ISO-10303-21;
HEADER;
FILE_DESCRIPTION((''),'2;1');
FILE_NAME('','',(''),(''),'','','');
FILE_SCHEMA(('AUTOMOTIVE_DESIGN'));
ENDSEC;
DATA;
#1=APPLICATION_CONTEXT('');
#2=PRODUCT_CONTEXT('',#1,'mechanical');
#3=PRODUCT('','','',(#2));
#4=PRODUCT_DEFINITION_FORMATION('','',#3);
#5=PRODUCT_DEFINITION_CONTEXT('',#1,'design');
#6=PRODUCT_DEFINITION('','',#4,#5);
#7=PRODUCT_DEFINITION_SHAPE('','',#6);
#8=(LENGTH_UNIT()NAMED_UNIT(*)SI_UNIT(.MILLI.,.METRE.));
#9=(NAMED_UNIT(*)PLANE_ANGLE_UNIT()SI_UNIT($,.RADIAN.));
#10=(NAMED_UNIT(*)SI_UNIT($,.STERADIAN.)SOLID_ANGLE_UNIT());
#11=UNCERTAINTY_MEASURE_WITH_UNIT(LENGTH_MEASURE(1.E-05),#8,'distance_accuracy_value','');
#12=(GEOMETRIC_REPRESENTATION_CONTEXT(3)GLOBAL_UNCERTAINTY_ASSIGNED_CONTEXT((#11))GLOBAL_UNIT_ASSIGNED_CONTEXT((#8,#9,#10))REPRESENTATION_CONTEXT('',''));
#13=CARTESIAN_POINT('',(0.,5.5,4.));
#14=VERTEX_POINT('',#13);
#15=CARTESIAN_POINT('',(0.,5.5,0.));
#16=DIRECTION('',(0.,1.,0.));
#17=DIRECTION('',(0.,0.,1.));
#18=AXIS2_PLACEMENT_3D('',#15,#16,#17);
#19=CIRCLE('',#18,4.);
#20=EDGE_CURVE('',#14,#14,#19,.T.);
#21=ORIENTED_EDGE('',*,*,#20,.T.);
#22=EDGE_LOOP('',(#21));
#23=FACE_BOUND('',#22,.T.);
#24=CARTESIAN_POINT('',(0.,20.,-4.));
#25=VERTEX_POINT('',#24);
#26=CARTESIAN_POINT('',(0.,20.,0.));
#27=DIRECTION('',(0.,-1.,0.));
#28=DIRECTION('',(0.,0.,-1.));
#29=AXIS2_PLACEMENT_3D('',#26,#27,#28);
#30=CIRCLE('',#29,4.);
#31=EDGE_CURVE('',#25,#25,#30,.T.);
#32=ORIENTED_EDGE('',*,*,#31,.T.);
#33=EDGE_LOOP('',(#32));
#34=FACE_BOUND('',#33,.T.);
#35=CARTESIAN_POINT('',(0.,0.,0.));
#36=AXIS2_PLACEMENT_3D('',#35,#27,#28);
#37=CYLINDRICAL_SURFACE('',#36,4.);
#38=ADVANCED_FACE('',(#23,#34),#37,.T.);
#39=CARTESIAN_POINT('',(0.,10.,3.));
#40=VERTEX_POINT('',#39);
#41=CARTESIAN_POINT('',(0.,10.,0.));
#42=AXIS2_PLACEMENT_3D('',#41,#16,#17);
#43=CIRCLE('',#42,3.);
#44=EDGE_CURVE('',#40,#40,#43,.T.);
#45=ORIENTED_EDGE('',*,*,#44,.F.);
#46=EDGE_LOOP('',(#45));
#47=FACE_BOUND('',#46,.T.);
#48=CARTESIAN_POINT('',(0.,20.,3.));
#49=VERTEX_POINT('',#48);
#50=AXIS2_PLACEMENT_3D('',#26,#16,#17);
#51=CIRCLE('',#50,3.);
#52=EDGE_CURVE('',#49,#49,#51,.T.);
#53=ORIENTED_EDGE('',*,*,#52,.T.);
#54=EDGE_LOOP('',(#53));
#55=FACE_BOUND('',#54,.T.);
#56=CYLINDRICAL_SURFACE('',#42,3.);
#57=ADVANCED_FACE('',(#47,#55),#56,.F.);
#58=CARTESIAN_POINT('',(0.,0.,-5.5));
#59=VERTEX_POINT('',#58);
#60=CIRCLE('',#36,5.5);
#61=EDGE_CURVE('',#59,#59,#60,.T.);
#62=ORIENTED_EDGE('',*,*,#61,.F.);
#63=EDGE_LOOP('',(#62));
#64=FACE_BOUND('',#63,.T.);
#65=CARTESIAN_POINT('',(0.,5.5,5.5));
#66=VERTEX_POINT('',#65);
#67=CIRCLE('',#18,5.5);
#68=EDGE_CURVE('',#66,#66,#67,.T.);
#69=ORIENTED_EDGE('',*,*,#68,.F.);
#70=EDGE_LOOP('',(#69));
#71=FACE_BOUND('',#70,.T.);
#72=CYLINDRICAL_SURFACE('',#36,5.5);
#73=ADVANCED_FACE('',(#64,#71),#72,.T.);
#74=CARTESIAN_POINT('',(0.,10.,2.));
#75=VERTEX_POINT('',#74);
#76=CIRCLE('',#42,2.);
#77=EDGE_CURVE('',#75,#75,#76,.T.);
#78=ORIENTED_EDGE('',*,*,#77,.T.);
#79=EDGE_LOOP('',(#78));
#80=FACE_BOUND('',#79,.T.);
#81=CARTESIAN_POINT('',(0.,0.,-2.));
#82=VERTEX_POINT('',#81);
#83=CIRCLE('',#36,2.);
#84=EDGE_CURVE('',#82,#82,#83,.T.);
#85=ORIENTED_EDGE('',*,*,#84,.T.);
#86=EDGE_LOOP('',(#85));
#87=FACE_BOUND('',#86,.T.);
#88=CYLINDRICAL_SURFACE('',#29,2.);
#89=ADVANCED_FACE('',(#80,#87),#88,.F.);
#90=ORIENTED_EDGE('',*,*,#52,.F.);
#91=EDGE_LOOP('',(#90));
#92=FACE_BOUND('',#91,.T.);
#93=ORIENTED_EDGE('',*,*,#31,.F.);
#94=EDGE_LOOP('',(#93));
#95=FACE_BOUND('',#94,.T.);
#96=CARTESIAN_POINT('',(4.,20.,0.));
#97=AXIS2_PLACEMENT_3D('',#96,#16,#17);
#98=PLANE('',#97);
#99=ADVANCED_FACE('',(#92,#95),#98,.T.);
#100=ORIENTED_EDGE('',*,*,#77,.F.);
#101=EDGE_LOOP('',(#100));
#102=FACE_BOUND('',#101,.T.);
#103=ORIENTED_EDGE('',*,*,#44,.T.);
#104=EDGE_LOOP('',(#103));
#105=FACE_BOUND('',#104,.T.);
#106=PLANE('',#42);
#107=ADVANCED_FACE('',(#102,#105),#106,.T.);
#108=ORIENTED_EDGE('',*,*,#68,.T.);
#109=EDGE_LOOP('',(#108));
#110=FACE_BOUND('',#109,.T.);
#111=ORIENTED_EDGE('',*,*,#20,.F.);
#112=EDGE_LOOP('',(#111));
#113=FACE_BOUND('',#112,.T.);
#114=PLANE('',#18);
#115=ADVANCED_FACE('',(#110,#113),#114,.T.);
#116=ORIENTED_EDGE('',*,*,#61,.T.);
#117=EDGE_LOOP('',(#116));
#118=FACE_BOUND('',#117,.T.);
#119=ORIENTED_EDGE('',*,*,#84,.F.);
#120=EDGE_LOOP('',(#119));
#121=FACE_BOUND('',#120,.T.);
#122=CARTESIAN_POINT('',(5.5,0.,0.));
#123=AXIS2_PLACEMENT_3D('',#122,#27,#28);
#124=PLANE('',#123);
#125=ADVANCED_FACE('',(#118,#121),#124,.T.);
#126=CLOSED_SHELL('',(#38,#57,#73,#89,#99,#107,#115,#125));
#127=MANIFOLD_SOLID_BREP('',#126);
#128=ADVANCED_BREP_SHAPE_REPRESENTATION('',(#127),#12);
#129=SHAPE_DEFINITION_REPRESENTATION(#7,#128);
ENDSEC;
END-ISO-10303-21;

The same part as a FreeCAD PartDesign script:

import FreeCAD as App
import Part
import Sketcher
from FreeCAD import Vector

doc = App.newDocument("Part")
params = doc.addObject("Spreadsheet::Sheet", "Params")
for row, (alias, value) in enumerate([
    ("sketch1_width", "4 mm"),
    ("sketch1_height", "9 mm"),
    ("sketch1_height2", "20 mm"),
    ("sketch1_width2", "5.5 mm"),
    ("revolution_angle", "360 deg"),
    ("sketch2_diameter", "6 mm"),
    ("pocket1_length", "10 mm"),
    ("sketch3_diameter", "4 mm"),
    ("sketch4_diameter", "11 mm"),
    ("sketch4_diameter2", "8 mm"),
    ("pocket3_length", "5.5 mm"),
], start=1):
    params.set(f"A{row}", alias)
    params.set(f"B{row}", "=" + value)
    params.setAlias(f"B{row}", alias)

body = doc.addObject("PartDesign::Body", "Body")

# Sketch on XY plane
sketch1 = body.newObject("Sketcher::SketchObject", "Sketch")
sketch1.AttachmentSupport = (doc.getObject("XY_Plane"), [""])
sketch1.MapMode = "FlatFace"
sketch1.addGeometry([
    Part.LineSegment(Vector(4, 11, 0), Vector(4, 20, 0)),  # 0
    Part.LineSegment(Vector(4, 20, 0), Vector(0, 20, 0)),  # 1
    Part.LineSegment(Vector(0, 20, 0), Vector(0, 0, 0)),  # 2
    Part.LineSegment(Vector(0, 0, 0), Vector(5.5, 0, 0)),  # 3
    Part.LineSegment(Vector(5.5, 0, 0), Vector(5.5, 11, 0)),  # 4
    Part.LineSegment(Vector(5.5, 11, 0), Vector(4, 11, 0)),  # 5
], False)
sketch1.addConstraint([
    Sketcher.Constraint("Coincident", 0, 2, 1, 1),
    Sketcher.Constraint("Coincident", 1, 2, 2, 1),
    Sketcher.Constraint("Coincident", 2, 2, 3, 1),
    Sketcher.Constraint("Coincident", 3, 2, 4, 1),
    Sketcher.Constraint("Coincident", 4, 2, 5, 1),
    Sketcher.Constraint("Coincident", 5, 2, 0, 1),
    Sketcher.Constraint("Vertical", 0),
    Sketcher.Constraint("Horizontal", 1),
    Sketcher.Constraint("Vertical", 2),
    Sketcher.Constraint("Horizontal", 3),
    Sketcher.Constraint("Vertical", 4),
    Sketcher.Constraint("Horizontal", 5),
    Sketcher.Constraint("Coincident", 2, 2, -1, 1),
    Sketcher.Constraint("DistanceX", 1, 2, 1, 1, 4.0),
    Sketcher.Constraint("DistanceY", 0, 1, 0, 2, 9.0),
    Sketcher.Constraint("DistanceY", 2, 2, 2, 1, 20.0),
    Sketcher.Constraint("DistanceX", 3, 1, 3, 2, 5.5),
])
sketch1.setExpression("Constraints[13]", "Params.sketch1_width")
sketch1.setExpression("Constraints[14]", "Params.sketch1_height")
sketch1.setExpression("Constraints[15]", "Params.sketch1_height2")
sketch1.setExpression("Constraints[16]", "Params.sketch1_width2")
revolution = body.newObject("PartDesign::Revolution", "Revolution")
revolution.Profile = sketch1
revolution.ReferenceAxis = (sketch1, ["V_Axis"])
revolution.setExpression("Angle", "Params.revolution_angle")

# Sketch on XZ plane
sketch2 = body.newObject("Sketcher::SketchObject", "Sketch001")
sketch2.AttachmentSupport = (doc.getObject("XZ_Plane"), [""])
sketch2.MapMode = "FlatFace"
sketch2.AttachmentOffset = App.Placement(Vector(0, 0, -20), App.Rotation())
sketch2.addGeometry(Part.Circle(Vector(0, 0, 0), Vector(0, 0, 1), 3), False)
sketch2.addConstraint([
    Sketcher.Constraint("Coincident", 0, 3, -1, 1),
    Sketcher.Constraint("Diameter", 0, 6.0),
])
sketch2.setExpression("Constraints[1]", "Params.sketch2_diameter")
pocket1 = body.newObject("PartDesign::Pocket", "Pocket")
pocket1.Profile = sketch2
pocket1.setExpression("Length", "Params.pocket1_length")
pocket1.Reversed = True

# Sketch on XZ plane
sketch3 = body.newObject("Sketcher::SketchObject", "Sketch002")
sketch3.AttachmentSupport = (doc.getObject("XZ_Plane"), [""])
sketch3.MapMode = "FlatFace"
sketch3.addGeometry(Part.Circle(Vector(0, 0, 0), Vector(0, 0, 1), 2), False)
sketch3.addConstraint([
    Sketcher.Constraint("Coincident", 0, 3, -1, 1),
    Sketcher.Constraint("Diameter", 0, 4.0),
])
sketch3.setExpression("Constraints[1]", "Params.sketch3_diameter")
pocket2 = body.newObject("PartDesign::Pocket", "Pocket001")
pocket2.Profile = sketch3
pocket2.Type = "ThroughAll"

# Sketch on XZ plane
sketch4 = body.newObject("Sketcher::SketchObject", "Sketch003")
sketch4.AttachmentSupport = (doc.getObject("XZ_Plane"), [""])
sketch4.MapMode = "FlatFace"
sketch4.AttachmentOffset = App.Placement(Vector(0, 0, -11), App.Rotation())
sketch4.addGeometry([
    Part.Circle(Vector(0, 0, 0), Vector(0, 0, 1), 5.5),
    Part.Circle(Vector(0, 0, 0), Vector(0, 0, 1), 4),
], False)
sketch4.addConstraint([
    Sketcher.Constraint("Coincident", 0, 3, -1, 1),
    Sketcher.Constraint("Coincident", 1, 3, -1, 1),
    Sketcher.Constraint("Diameter", 0, 11.0),
    Sketcher.Constraint("Diameter", 1, 8.0),
])
sketch4.setExpression("Constraints[2]", "Params.sketch4_diameter")
sketch4.setExpression("Constraints[3]", "Params.sketch4_diameter2")
pocket3 = body.newObject("PartDesign::Pocket", "Pocket002")
pocket3.Profile = sketch4
pocket3.setExpression("Length", "Params.pocket3_length")
pocket3.Reversed = True

doc.recompute()
